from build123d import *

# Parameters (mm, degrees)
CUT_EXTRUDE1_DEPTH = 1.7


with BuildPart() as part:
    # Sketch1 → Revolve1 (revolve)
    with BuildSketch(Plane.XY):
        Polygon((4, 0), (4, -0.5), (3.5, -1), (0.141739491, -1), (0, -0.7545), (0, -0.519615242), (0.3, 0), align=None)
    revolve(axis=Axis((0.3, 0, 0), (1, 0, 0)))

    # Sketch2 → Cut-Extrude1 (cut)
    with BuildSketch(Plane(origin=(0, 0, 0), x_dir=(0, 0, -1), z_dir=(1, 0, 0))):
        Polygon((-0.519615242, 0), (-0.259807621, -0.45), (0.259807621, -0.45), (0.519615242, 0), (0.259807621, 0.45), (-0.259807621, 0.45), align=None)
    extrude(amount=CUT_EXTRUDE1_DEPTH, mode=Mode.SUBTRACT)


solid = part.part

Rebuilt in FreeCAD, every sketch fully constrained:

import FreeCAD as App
import Part
import Sketcher

V = App.Vector
Q = App.Units.Quantity


def add_polygon(sketch, points):
    """Adds a closed chain of lines whose ends are joined by coincident constraints."""
    first, n = sketch.GeometryCount, len(points)
    for a, b in zip(points, points[1:] + points[:1]):
        sketch.addGeometry(Part.LineSegment(App.Vector(*a, 0), App.Vector(*b, 0)), False)
    for i in range(n):
        sketch.addConstraint(Sketcher.Constraint("Coincident", first + i, 2, first + (i + 1) % n, 1))

doc = App.newDocument("Part")
params = doc.addObject("Spreadsheet::Sheet", "Params")
for row, (alias, value) in enumerate([
    ("sketch1_width", "3.7 mm"),
    ("sketch1_height", "0.5 mm"),
    ("revolution_angle", "360 deg"),
    ("pocket1_length", "1.7 mm"),
], start=1):
    params.set(f"A{row}", alias)
    params.set(f"B{row}", "=" + value)
    params.setAlias(f"B{row}", alias)

body = doc.addObject("PartDesign::Body", "Body")

# Sketch on XY plane
sketch1 = doc.addObject("Sketcher::SketchObject", "Sketch")
body.addObject(sketch1)
sketch1.AttachmentSupport = (doc.XY_Plane, [""])
sketch1.MapMode = "FlatFace"
add_polygon(sketch1, [(4, -0.5), (4, 0), (0.3, 0), (0, -0.519615), (0, -0.7545), (0.141739, -1), (3.5, -1)])  # lines 0-6
sketch1.addConstraint(Sketcher.Constraint("Vertical", 0))
sketch1.addConstraint(Sketcher.Constraint("Horizontal", 1))
sketch1.addConstraint(Sketcher.Constraint("Vertical", 3))
sketch1.addConstraint(Sketcher.Constraint("Horizontal", 5))
sketch1.addConstraint(Sketcher.Constraint("PointOnObject", 0, 2, -1))
sketch1.addConstraint(Sketcher.Constraint("PointOnObject", 2, 2, -2))
sketch1.addConstraint(Sketcher.Constraint("Angle", 2, Q("-120 deg")))
sketch1.addConstraint(Sketcher.Constraint("Angle", 4, Q("-60 deg")))
sketch1.addConstraint(Sketcher.Constraint("Angle", 6, Q("45 deg")))
sketch1.addConstraint(Sketcher.Constraint("DistanceX", 1, 2, 1, 1, Q("3.7 mm")))
sketch1.addConstraint(Sketcher.Constraint("DistanceY", 0, 1, 0, 2, Q("0.5 mm")))
sketch1.addConstraint(Sketcher.Constraint("DistanceX", -1, 1, 0, 2, Q("4 mm")))
sketch1.addConstraint(Sketcher.Constraint("DistanceY", 4, 2, -1, 1, Q("1 mm")))
sketch1.addConstraint(Sketcher.Constraint("DistanceX", 5, 1, 5, 2, Q("3.358261 mm")))
sketch1.setExpression("Constraints[16]", "Params.sketch1_width")
sketch1.setExpression("Constraints[17]", "Params.sketch1_height")
revolution = doc.addObject("PartDesign::Revolution", "Revolution")
body.addObject(revolution)
revolution.Profile = sketch1
revolution.ReferenceAxis = (sketch1, ["H_Axis"])
revolution.setExpression("Angle", "Params.revolution_angle")

# Sketch on YZ plane
sketch2 = doc.addObject("Sketcher::SketchObject", "Sketch001")
body.addObject(sketch2)
sketch2.AttachmentSupport = (doc.YZ_Plane, [""])
sketch2.MapMode = "FlatFace"
add_polygon(sketch2, [(0, 0.519615), (-0.45, 0.259808), (-0.45, -0.259808), (0, -0.519615), (0.45, -0.259808), (0.45, 0.259808)])  # lines 0-5
sketch2.addConstraint(Sketcher.Constraint("Vertical", 1))
sketch2.addConstraint(Sketcher.Constraint("Vertical", 4))
sketch2.addConstraint(Sketcher.Constraint("Symmetric", 0, 2, 3, 2, -1, 1))
sketch2.addConstraint(Sketcher.Constraint("Symmetric", 2, 2, 5, 2, -1, 1))
sketch2.addConstraint(Sketcher.Constraint("PointOnObject", 2, 2, -2))
sketch2.addConstraint(Sketcher.Constraint("Parallel", 2, 5))
sketch2.addConstraint(Sketcher.Constraint("Horizontal", 1, 2, 3, 2))
sketch2.addConstraint(Sketcher.Constraint("Angle", 0, Q("-150 deg")))
sketch2.addConstraint(Sketcher.Constraint("DistanceX", 1, 2, 3, 2, Q("0.9 mm")))
sketch2.addConstraint(Sketcher.Constraint("DistanceY", 1, 2, 1, 1, Q("0.519615 mm")))
pocket1 = doc.addObject("PartDesign::Pocket", "Pocket")
body.addObject(pocket1)
pocket1.Profile = sketch2
pocket1.setExpression("Length", "Params.pocket1_length")
pocket1.Reversed = True

doc.recompute()
